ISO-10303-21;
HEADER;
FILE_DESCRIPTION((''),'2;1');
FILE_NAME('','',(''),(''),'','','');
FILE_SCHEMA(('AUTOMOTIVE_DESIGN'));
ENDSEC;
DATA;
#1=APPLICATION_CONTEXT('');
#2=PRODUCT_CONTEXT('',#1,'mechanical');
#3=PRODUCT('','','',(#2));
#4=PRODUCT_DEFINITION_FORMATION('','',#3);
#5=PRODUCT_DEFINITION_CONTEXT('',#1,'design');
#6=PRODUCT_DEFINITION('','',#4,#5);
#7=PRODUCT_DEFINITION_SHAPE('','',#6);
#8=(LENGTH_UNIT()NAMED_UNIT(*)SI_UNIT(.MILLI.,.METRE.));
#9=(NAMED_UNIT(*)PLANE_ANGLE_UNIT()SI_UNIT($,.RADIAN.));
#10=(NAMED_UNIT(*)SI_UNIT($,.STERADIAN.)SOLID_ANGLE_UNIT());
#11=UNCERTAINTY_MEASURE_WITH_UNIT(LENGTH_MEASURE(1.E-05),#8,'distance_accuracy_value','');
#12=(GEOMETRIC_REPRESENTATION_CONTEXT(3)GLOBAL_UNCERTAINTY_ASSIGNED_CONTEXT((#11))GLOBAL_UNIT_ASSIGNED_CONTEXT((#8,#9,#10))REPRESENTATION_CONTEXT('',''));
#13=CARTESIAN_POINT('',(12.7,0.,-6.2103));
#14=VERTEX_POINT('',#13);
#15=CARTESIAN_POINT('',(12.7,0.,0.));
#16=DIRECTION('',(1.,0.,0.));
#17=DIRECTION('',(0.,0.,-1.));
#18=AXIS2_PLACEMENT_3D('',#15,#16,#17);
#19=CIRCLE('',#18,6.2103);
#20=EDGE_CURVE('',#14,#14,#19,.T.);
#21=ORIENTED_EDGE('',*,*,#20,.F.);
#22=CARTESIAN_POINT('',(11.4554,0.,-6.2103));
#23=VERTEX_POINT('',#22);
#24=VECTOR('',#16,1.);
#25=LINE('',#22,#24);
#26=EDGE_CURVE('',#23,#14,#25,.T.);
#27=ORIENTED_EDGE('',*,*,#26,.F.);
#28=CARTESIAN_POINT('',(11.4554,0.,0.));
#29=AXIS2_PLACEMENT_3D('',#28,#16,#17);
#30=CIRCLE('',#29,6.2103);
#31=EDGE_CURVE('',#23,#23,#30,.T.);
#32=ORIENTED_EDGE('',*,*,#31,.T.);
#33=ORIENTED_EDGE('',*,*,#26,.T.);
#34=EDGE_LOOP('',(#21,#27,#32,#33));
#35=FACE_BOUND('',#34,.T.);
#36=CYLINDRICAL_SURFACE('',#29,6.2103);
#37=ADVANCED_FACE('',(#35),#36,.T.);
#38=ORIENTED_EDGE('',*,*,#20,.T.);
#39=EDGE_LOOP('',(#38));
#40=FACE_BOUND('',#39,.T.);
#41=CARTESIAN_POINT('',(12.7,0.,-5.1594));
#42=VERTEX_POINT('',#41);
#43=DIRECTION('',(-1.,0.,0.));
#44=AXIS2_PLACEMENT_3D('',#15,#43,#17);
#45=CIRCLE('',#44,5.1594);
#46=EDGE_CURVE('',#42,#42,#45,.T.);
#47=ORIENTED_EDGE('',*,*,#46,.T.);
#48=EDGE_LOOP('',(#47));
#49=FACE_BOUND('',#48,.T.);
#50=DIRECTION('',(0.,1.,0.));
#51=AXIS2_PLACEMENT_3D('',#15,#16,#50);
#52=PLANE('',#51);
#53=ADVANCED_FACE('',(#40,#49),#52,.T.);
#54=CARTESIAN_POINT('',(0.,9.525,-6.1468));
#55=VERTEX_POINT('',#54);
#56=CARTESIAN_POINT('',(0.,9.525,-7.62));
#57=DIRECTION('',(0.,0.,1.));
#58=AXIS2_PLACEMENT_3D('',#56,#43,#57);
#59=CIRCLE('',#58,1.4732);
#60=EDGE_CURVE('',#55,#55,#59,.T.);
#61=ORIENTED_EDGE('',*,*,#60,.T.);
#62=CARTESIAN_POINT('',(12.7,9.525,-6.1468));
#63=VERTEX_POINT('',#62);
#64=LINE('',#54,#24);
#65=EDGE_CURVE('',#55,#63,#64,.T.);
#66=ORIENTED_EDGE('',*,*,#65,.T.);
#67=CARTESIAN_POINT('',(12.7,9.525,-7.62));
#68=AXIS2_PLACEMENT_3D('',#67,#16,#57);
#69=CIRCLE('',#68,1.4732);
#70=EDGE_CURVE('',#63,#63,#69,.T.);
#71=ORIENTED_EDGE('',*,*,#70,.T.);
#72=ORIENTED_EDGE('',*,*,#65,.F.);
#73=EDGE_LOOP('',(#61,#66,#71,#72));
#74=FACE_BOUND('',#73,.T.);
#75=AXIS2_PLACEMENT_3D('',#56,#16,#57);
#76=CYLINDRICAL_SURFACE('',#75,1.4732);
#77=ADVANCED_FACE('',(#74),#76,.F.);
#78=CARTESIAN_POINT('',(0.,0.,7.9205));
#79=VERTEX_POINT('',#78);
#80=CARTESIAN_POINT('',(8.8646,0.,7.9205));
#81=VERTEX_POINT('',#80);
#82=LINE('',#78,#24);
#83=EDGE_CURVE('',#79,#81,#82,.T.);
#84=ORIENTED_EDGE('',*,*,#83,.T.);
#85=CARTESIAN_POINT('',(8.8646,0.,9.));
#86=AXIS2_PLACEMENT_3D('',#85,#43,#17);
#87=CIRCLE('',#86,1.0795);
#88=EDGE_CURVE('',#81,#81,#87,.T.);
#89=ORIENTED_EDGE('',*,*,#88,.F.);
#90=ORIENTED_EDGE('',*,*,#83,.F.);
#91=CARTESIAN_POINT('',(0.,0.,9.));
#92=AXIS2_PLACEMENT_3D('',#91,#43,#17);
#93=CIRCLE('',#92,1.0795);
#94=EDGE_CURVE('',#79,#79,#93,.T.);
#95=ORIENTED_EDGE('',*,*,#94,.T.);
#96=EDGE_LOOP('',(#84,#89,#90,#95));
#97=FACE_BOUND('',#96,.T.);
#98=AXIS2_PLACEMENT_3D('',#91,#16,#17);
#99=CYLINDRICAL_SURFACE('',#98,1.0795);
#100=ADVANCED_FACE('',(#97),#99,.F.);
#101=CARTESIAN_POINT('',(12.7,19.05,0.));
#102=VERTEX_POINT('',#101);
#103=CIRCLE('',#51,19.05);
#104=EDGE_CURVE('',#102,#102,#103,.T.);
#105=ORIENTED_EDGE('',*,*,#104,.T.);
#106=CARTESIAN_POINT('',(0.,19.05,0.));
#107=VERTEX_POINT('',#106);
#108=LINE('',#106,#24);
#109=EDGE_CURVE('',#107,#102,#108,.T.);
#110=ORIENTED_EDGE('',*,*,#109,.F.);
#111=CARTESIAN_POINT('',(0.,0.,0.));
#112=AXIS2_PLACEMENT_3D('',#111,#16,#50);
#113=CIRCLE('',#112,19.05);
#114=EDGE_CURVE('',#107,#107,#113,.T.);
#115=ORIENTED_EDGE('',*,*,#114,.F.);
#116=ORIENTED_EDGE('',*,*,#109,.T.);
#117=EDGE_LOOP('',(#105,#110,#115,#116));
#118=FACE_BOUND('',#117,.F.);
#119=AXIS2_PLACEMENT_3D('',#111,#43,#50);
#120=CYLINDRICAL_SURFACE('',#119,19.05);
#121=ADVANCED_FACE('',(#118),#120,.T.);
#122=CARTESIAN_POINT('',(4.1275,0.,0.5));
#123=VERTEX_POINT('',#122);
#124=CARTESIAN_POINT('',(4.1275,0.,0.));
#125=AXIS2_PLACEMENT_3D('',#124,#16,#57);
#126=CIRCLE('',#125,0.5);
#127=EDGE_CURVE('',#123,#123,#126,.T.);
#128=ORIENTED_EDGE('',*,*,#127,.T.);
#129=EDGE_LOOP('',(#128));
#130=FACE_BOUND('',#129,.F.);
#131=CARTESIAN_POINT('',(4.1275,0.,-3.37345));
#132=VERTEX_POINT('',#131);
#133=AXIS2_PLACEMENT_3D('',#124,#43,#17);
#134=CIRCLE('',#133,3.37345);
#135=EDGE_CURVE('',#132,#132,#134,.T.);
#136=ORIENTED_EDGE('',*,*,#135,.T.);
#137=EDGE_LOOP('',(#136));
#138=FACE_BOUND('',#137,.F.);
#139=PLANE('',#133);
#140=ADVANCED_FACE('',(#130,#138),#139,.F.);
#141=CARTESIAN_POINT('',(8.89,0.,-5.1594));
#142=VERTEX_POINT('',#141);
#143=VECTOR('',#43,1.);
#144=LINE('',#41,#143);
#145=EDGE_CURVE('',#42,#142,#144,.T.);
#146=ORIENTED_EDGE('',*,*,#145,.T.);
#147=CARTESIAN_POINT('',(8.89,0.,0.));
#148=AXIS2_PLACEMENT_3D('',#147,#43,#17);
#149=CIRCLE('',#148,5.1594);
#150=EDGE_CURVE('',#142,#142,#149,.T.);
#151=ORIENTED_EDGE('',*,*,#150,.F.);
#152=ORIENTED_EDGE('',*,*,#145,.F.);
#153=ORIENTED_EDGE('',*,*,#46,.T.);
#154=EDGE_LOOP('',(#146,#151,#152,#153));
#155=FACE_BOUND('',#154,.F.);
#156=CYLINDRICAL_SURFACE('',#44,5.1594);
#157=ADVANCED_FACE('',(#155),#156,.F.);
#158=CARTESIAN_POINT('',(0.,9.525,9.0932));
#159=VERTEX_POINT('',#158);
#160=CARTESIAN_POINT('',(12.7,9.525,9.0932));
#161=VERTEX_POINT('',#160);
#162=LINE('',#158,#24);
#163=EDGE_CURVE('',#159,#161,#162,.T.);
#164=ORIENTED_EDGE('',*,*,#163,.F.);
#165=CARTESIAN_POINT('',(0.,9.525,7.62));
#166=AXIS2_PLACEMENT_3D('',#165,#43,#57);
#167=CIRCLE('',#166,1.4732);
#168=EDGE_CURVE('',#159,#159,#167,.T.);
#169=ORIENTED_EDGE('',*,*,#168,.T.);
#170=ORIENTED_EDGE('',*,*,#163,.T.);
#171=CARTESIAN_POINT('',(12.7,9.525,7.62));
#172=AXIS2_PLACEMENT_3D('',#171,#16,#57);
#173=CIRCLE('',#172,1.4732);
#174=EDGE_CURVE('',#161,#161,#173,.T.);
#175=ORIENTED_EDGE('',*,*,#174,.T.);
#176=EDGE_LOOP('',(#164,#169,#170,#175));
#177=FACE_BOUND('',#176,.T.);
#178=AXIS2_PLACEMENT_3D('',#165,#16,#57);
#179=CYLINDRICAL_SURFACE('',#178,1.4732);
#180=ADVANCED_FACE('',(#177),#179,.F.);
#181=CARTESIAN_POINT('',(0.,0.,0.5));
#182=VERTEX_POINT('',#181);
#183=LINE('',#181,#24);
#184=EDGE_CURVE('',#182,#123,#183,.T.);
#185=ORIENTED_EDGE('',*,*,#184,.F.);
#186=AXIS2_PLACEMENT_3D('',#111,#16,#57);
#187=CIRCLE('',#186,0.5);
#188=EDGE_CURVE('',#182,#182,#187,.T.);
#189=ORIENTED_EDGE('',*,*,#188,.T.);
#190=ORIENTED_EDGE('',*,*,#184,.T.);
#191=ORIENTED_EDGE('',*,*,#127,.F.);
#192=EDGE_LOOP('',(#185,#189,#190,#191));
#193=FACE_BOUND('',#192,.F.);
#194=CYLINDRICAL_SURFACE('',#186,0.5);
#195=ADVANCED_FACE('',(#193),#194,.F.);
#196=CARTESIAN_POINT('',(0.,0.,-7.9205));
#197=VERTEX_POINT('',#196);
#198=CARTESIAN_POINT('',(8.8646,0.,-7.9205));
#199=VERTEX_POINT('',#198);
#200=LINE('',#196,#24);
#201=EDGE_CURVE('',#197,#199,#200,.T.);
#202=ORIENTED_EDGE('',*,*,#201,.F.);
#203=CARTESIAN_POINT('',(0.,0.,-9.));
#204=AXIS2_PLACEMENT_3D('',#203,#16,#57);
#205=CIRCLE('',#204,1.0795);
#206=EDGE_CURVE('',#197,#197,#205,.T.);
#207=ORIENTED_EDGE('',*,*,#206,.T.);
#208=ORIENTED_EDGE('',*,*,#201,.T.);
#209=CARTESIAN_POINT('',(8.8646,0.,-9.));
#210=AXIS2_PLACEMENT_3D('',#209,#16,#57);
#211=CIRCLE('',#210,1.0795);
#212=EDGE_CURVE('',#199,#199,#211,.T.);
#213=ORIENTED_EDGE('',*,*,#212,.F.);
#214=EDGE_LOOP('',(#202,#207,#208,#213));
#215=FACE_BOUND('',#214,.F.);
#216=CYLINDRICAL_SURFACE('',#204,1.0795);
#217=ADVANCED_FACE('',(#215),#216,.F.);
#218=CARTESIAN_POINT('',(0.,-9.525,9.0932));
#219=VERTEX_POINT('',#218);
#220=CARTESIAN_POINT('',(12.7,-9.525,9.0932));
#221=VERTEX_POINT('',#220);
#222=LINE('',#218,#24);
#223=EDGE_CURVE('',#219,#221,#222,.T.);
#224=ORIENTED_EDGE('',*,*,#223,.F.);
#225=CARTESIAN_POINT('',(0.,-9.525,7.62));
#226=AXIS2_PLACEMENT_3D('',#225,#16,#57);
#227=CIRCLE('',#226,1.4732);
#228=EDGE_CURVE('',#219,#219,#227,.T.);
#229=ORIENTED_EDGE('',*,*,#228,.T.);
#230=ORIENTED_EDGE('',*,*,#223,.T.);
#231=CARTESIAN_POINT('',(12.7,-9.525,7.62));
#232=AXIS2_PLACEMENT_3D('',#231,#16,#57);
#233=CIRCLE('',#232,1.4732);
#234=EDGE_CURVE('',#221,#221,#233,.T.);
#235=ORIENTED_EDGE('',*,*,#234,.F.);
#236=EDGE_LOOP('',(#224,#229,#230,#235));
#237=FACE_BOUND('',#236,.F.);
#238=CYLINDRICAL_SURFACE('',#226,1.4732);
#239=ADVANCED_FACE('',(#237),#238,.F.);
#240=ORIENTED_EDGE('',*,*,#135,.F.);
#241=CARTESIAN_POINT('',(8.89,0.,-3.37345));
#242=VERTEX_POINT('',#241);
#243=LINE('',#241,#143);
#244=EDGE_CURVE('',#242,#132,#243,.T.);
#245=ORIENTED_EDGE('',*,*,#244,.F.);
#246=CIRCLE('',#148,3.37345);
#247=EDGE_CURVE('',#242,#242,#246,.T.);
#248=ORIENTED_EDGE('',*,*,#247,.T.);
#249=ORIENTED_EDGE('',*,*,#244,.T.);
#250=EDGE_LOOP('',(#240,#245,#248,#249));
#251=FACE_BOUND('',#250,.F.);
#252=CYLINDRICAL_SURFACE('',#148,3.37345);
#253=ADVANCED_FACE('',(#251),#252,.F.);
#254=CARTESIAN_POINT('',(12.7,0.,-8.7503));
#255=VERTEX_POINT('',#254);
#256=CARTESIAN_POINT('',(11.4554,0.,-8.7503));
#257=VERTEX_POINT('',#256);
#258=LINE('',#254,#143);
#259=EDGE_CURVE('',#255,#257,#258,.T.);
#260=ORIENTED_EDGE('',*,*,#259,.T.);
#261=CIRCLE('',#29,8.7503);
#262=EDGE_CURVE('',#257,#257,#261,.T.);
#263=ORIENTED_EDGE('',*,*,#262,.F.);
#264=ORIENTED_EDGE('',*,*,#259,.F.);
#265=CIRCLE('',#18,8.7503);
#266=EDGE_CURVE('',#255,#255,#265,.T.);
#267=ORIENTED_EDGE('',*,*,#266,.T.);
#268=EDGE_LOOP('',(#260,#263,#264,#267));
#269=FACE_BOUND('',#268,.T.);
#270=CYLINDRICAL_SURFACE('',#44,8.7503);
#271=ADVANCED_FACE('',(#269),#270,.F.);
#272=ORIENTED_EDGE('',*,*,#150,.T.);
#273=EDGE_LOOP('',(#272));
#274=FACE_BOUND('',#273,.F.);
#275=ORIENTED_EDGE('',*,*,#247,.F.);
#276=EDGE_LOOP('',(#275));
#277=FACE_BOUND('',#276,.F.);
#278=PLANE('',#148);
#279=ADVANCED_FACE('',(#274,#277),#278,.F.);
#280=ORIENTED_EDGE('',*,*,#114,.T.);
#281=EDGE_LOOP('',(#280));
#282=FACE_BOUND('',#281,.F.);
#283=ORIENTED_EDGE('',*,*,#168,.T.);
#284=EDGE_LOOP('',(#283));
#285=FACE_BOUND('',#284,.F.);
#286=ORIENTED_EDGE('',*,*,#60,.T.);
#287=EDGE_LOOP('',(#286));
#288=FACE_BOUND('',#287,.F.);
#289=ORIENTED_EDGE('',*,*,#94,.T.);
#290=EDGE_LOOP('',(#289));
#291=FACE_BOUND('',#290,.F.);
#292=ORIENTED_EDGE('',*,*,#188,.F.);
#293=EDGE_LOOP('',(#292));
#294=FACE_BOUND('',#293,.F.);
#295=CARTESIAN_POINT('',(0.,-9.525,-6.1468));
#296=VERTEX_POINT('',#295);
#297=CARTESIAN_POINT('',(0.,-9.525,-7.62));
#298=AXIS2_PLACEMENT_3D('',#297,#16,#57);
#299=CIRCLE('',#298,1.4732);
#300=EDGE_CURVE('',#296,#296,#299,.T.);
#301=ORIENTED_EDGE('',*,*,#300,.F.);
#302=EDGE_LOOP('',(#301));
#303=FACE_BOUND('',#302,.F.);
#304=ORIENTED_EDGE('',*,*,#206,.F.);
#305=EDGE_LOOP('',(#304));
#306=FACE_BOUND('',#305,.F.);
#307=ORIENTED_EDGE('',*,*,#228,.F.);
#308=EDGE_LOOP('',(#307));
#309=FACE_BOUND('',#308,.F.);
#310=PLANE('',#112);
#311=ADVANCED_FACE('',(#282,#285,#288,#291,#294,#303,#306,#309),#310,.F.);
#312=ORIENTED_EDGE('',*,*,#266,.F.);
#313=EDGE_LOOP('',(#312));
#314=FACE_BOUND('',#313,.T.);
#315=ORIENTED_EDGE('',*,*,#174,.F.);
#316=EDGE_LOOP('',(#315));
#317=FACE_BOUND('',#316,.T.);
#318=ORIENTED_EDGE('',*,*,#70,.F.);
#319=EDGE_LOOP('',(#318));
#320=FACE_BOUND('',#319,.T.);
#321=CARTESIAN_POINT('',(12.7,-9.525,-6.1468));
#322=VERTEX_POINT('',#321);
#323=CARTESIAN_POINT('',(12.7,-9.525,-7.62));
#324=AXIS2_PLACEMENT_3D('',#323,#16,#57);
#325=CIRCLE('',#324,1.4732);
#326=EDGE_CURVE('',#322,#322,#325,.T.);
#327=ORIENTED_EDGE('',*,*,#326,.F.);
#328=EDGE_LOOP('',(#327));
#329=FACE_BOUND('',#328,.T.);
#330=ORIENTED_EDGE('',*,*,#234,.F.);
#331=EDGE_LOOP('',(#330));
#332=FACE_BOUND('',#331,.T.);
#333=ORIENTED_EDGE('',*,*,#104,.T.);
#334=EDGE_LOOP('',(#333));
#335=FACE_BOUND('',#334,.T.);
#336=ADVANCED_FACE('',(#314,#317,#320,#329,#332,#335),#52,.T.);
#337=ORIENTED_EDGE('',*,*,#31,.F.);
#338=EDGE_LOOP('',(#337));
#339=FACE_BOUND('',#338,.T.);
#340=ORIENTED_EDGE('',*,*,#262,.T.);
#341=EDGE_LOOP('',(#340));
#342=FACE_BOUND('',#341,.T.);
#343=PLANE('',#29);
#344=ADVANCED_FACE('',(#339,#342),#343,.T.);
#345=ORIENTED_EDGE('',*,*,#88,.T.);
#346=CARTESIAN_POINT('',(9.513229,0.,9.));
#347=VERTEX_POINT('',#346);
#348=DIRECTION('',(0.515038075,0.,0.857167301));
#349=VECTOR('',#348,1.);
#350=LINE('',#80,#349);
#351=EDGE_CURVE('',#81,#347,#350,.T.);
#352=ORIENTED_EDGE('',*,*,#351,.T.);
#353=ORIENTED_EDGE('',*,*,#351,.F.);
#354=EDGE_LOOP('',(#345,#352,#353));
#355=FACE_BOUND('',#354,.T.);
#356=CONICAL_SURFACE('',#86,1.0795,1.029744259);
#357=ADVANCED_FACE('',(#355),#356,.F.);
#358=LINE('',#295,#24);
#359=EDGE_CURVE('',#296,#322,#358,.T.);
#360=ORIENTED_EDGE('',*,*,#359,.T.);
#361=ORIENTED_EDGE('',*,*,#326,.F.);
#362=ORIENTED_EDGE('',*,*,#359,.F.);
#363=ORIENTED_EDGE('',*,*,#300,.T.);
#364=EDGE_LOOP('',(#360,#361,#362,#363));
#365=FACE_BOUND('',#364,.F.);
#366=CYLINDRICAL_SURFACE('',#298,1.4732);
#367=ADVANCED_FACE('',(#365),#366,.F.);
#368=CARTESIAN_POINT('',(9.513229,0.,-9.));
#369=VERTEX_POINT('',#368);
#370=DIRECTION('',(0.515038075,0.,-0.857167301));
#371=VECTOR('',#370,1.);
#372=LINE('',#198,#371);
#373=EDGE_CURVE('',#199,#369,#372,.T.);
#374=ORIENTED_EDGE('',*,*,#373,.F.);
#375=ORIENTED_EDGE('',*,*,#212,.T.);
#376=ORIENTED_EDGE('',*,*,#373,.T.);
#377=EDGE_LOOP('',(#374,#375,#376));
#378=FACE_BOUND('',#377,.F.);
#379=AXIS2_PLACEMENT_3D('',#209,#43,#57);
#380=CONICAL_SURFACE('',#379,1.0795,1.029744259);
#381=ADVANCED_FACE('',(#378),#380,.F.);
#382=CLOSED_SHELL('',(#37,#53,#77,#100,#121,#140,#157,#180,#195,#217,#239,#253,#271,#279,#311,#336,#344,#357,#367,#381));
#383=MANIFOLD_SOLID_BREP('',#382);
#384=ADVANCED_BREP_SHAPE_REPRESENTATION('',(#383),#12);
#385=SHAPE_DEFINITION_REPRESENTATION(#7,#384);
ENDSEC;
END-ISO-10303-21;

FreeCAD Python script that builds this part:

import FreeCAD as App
import Part
import Sketcher
Q = App.Units.Quantity


def add_polygon(sketch, points):
    """Adds a closed chain of lines whose ends are joined by coincident constraints."""
    first, n = sketch.GeometryCount, len(points)
    for a, b in zip(points, points[1:] + points[:1]):
        sketch.addGeometry(Part.LineSegment(App.Vector(*a, 0), App.Vector(*b, 0)), False)
    for i in range(n):
        sketch.addConstraint(Sketcher.Constraint("Coincident", first + i, 2, first + (i + 1) % n, 1))

doc = App.newDocument("Part")
body = doc.addObject("PartDesign::Body", "Body")

# Sketch on YZ plane
sketch1 = body.newObject("Sketcher::SketchObject", "Sketch")
sketch1.AttachmentSupport = (doc.getObject("YZ_Plane"), [""])
sketch1.MapMode = "FlatFace"
sketch1.addGeometry(Part.Circle(App.Vector(0, 0, 0), App.Vector(0, 0, 1), 19.05), False)
sketch1.addConstraint(Sketcher.Constraint("Coincident", 0, 3, -1, 1))
sketch1.addConstraint(Sketcher.Constraint("Diameter", 0, Q("1.5 in")))
pad1 = body.newObject("PartDesign::Pad", "Pad")
pad1.Profile = sketch1
pad1.Length = Q("0.5 in")

# Sketch on YZ plane
sketch2 = body.newObject("Sketcher::SketchObject", "Sketch001")
sketch2.AttachmentSupport = (doc.getObject("YZ_Plane"), [""])
sketch2.MapMode = "FlatFace"
sketch2.AttachmentOffset = App.Placement(App.Vector(0, 0, 0.5 * 25.4), App.Rotation())
sketch2.addGeometry(Part.Circle(App.Vector(0, 0, 0), App.Vector(0, 0, 1), 5.1594), False)
sketch2.addConstraint(Sketcher.Constraint("Coincident", 0, 3, -1, 1))
sketch2.addConstraint(Sketcher.Constraint("Diameter", 0, Q("0.406252 in")))
doc.recompute()
hole = body.newObject("PartDesign::Hole", "Hole")
hole.Profile = sketch2
hole.ThreadType = "None"
hole.Diameter = Q("0.406252 in")
hole.DepthType = "Dimension"
hole.Depth = Q("0.15 in")
hole.DrillPoint = "Flat"

# Sketch on YZ plane
sketch3 = body.newObject("Sketcher::SketchObject", "Sketch002")
sketch3.AttachmentSupport = (doc.getObject("YZ_Plane"), [""])
sketch3.MapMode = "FlatFace"
sketch3.AttachmentOffset = App.Placement(App.Vector(0, 0, 0.35 * 25.4), App.Rotation())
sketch3.addGeometry(Part.Circle(App.Vector(0, 0, 0), App.Vector(0, 0, 1), 3.37345), False)
sketch3.addConstraint(Sketcher.Constraint("Coincident", 0, 3, -1, 1))
sketch3.addConstraint(Sketcher.Constraint("Diameter", 0, Q("0.2656299 in")))
doc.recompute()
hole2 = body.newObject("PartDesign::Hole", "Hole001")
hole2.Profile = sketch3
hole2.ThreadType = "None"
hole2.Diameter = Q("0.265626 in")
hole2.DepthType = "Dimension"
hole2.Depth = Q("0.1875 in")
hole2.DrillPoint = "Flat"

# Sketch on YZ plane
sketch4 = body.newObject("Sketcher::SketchObject", "Sketch003")
sketch4.AttachmentSupport = (doc.getObject("YZ_Plane"), [""])
sketch4.MapMode = "FlatFace"
sketch4.addGeometry(Part.Circle(App.Vector(0, -9, 0), App.Vector(0, 0, 1), 1.0795), False)
sketch4.addConstraint(Sketcher.Constraint("PointOnObject", 0, 3, -2))
sketch4.addConstraint(Sketcher.Constraint("Diameter", 0, Q("0.085 in")))
sketch4.addConstraint(Sketcher.Constraint("DistanceY", 0, 3, -1, 1, 9.0))
doc.recompute()
hole3 = body.newObject("PartDesign::Hole", "Hole002")
hole3.Profile = sketch4
hole3.ThreadType = "None"
hole3.Diameter = Q("0.085 in")
hole3.DepthType = "Dimension"
hole3.Depth = Q("0.349 in")
hole3.DrillPoint = "Angled"
hole3.DrillPointAngle = 118
hole3.Reversed = True

# Sketch on YZ plane
sketch5 = body.newObject("Sketcher::SketchObject", "Sketch004")
sketch5.AttachmentSupport = (doc.getObject("YZ_Plane"), [""])
sketch5.MapMode = "FlatFace"
sketch5.addGeometry(Part.Circle(App.Vector(0, 0, 0), App.Vector(0, 0, 1), 0.5), False)
sketch5.addConstraint(Sketcher.Constraint("Coincident", 0, 3, -1, 1))
sketch5.addConstraint(Sketcher.Constraint("Diameter", 0, 1.0))
doc.recompute()
hole4 = body.newObject("PartDesign::Hole", "Hole003")
hole4.Profile = sketch5
hole4.ThreadType = "None"
hole4.Diameter = 1
hole4.DepthType = "ThroughAll"
hole4.Reversed = True
doc.recompute()

mirrored = body.newObject("PartDesign::Mirrored", "Mirrored")
mirrored.Originals = [hole3]
mirrored.MirrorPlane = (doc.getObject("XY_Plane"), [""])
body.Tip = mirrored

# Sketch on YZ plane
sketch6 = body.newObject("Sketcher::SketchObject", "Sketch005")
sketch6.AttachmentSupport = (doc.getObject("YZ_Plane"), [""])
sketch6.MapMode = "FlatFace"
sketch6.addGeometry(Part.Circle(App.Vector(-9.525, 7.62, 0), App.Vector(0, 0, 1), 1.4732), False)
sketch6.addGeometry(Part.Circle(App.Vector(-9.525, -7.62, 0), App.Vector(0, 0, 1), 1.4732), False)
sketch6.addConstraint(Sketcher.Constraint("Equal", 0, 1))
sketch6.addConstraint(Sketcher.Constraint("Symmetric", 0, 3, 1, 3, -1))
sketch6.addConstraint(Sketcher.Constraint("Diameter", 0, Q("0.116 in")))
sketch6.addConstraint(Sketcher.Constraint("DistanceY", -1, 1, 0, 3, Q("0.3 in")))
sketch6.addConstraint(Sketcher.Constraint("DistanceX", 0, 3, -1, 1, Q("0.375 in")))
doc.recompute()
hole5 = body.newObject("PartDesign::Hole", "Hole004")
hole5.Profile = sketch6
hole5.ThreadType = "None"
hole5.Diameter = Q("0.116 in")
hole5.DepthType = "ThroughAll"
hole5.Reversed = True
doc.recompute()

mirrored2 = body.newObject("PartDesign::Mirrored", "Mirrored001")
mirrored2.Originals = [hole5]
mirrored2.MirrorPlane = (doc.getObject("XZ_Plane"), [""])
body.Tip = mirrored2

# Sketch on XZ plane
sketch7 = body.newObject("Sketcher::SketchObject", "Sketch006")
sketch7.AttachmentSupport = (doc.getObject("XZ_Plane"), [""])
sketch7.MapMode = "FlatFace"
add_polygon(sketch7, [(11.4554, -8.7503), (11.4554, -6.2103), (12.7, -6.2103), (12.7, -8.7503)])  # lines 0-3
sketch7.addConstraint(Sketcher.Constraint("Vertical", 0))
sketch7.addConstraint(Sketcher.Constraint("Horizontal", 1))
sketch7.addConstraint(Sketcher.Constraint("Vertical", 2))
sketch7.addConstraint(Sketcher.Constraint("Horizontal", 3))
sketch7.addConstraint(Sketcher.Constraint("DistanceY", 0, 1, 0, 2, Q("0.1 in")))
sketch7.addConstraint(Sketcher.Constraint("DistanceX", 1, 1, 1, 2, Q("0.049 in")))
sketch7.addConstraint(Sketcher.Constraint("DistanceY", 0, 2, -1, 1, Q("0.2445 in")))
sketch7.addConstraint(Sketcher.Constraint("DistanceX", -1, 1, 1, 2, Q("0.5 in")))
groove = body.newObject("PartDesign::Groove", "Groove")
groove.Profile = sketch7
groove.ReferenceAxis = (sketch7, ["H_Axis"])
groove.Angle = 360

doc.recompute()
